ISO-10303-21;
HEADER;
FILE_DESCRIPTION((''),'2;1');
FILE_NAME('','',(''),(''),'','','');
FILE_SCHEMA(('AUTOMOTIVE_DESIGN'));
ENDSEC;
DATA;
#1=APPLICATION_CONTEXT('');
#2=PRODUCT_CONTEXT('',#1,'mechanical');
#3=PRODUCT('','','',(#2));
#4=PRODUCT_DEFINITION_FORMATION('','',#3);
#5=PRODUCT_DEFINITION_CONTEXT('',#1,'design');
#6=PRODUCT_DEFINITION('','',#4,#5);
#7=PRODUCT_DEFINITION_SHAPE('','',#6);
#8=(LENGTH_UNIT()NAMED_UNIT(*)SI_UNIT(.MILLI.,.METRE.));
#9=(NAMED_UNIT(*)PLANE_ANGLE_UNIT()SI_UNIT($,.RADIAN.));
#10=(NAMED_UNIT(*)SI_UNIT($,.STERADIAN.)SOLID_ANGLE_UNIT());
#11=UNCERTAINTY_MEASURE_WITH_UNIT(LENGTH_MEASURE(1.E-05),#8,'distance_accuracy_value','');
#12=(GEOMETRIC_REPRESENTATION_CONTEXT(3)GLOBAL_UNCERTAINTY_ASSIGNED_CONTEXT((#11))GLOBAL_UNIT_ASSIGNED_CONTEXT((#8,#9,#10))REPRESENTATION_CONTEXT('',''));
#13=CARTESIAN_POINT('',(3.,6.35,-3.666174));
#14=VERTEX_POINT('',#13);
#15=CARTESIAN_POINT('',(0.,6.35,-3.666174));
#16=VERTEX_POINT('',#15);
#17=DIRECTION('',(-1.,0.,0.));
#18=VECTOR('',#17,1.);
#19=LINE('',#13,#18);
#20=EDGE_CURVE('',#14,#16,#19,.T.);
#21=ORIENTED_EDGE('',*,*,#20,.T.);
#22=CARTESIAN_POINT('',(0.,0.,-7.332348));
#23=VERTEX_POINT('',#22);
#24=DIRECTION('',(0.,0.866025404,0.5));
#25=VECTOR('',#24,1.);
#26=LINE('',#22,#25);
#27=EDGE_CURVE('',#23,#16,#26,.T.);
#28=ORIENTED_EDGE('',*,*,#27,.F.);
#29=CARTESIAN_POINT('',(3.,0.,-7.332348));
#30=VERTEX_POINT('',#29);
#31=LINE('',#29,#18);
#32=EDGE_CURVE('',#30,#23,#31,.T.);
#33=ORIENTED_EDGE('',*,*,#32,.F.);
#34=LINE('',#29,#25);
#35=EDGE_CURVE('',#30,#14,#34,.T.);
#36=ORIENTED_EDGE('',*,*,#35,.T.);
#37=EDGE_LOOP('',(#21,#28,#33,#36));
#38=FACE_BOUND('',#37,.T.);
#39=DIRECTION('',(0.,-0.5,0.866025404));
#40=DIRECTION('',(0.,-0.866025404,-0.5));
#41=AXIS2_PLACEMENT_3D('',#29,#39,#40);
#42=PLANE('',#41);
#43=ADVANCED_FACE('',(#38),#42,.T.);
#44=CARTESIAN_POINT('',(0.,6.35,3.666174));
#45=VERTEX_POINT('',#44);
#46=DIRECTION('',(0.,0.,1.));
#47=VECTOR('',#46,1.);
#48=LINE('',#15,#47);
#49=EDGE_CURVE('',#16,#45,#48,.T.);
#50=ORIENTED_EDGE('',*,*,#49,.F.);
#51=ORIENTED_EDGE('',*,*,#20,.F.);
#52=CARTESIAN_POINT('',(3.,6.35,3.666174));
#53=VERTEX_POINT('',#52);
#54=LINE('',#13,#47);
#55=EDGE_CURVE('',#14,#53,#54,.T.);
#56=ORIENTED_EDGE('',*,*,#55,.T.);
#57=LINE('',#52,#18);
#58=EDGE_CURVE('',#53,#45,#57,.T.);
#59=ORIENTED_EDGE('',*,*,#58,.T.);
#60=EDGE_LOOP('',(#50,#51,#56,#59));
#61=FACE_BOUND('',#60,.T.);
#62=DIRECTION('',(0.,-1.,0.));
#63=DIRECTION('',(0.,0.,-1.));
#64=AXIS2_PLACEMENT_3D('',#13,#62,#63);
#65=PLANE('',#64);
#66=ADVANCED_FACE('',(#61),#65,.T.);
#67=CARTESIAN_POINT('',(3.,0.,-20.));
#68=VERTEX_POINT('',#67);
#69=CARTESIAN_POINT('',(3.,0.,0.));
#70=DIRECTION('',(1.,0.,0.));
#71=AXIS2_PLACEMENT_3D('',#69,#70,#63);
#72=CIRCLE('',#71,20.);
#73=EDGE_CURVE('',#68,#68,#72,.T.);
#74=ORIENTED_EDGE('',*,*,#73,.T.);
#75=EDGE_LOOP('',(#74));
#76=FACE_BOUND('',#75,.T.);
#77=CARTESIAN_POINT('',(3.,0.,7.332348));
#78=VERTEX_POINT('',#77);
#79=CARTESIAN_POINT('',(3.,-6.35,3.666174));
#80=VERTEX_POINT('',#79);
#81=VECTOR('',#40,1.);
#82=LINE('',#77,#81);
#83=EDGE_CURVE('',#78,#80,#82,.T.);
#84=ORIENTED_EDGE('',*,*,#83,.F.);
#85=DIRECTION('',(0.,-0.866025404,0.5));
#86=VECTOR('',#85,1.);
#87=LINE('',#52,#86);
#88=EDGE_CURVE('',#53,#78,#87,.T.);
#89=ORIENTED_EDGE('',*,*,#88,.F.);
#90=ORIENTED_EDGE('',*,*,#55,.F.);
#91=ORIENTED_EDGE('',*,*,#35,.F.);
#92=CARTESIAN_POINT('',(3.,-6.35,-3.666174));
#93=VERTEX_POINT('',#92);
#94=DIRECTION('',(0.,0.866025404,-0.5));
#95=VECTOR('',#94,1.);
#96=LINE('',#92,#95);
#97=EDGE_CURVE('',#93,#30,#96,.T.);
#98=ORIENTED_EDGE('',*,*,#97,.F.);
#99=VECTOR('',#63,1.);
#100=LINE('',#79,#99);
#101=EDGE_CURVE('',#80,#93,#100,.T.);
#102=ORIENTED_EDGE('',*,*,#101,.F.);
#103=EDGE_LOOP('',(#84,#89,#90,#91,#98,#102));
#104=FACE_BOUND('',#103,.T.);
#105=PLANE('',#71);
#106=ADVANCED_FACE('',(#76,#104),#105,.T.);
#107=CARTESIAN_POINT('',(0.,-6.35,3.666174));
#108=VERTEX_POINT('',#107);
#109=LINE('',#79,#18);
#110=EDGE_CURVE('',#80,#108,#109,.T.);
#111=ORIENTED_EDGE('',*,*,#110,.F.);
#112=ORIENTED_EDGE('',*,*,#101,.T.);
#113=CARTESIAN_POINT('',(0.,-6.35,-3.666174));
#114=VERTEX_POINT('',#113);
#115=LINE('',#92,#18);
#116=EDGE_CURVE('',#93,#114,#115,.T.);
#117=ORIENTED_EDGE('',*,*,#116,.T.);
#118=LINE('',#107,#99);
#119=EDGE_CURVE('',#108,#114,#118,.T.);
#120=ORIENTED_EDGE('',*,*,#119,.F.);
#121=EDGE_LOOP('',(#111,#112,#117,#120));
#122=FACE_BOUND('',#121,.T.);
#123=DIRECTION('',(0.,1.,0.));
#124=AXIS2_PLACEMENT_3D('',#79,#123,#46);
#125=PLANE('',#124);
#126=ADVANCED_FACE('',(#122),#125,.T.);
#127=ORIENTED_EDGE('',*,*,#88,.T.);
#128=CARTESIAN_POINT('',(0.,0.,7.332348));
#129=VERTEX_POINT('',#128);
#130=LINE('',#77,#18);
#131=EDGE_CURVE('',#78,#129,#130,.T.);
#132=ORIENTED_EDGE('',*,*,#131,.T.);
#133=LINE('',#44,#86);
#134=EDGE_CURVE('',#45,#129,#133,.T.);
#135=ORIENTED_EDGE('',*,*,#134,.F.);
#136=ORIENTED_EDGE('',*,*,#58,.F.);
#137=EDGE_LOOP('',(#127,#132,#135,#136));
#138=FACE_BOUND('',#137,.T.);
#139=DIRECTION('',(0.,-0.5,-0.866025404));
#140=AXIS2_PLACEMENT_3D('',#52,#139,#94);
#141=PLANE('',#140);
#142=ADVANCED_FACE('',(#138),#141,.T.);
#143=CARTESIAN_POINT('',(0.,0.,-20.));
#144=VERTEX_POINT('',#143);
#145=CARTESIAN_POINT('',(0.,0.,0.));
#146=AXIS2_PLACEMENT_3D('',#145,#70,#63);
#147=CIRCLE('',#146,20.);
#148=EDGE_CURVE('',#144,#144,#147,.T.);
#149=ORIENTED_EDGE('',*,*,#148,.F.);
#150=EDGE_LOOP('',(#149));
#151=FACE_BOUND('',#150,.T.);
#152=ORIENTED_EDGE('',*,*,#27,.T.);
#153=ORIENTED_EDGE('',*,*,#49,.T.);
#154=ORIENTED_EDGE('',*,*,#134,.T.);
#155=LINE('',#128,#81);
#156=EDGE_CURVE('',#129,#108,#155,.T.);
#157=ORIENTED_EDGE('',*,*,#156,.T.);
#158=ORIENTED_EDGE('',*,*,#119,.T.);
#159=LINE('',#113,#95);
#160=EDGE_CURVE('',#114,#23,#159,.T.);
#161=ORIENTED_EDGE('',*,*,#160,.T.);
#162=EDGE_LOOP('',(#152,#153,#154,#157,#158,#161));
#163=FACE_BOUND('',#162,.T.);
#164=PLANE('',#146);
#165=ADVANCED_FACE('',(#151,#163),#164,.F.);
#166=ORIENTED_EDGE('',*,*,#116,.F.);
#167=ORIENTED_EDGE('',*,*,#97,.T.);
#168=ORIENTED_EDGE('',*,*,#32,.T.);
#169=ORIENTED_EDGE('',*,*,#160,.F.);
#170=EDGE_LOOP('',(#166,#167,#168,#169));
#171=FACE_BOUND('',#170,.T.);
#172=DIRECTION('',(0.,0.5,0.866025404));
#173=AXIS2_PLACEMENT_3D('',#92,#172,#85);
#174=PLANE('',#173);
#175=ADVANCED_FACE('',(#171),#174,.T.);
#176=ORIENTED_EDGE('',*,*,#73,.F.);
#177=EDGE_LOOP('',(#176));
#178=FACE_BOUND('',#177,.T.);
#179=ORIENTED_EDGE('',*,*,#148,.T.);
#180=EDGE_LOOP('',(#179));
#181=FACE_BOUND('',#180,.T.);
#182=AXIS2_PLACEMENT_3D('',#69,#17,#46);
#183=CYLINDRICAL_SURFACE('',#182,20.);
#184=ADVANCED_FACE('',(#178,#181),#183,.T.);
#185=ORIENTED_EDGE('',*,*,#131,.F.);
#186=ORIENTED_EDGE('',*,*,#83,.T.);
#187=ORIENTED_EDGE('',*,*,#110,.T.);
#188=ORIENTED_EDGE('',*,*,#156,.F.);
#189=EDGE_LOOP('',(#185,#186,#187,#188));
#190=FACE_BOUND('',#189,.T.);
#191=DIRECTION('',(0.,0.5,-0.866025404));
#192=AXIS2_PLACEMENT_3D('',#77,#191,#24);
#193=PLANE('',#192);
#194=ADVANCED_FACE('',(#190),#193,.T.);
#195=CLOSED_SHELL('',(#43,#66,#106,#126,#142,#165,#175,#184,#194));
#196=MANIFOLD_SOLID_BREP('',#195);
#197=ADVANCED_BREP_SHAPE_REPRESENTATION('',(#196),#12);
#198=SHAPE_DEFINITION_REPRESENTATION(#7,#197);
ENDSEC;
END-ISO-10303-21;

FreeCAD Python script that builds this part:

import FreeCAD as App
import Part
import Sketcher
Q = App.Units.Quantity

doc = App.newDocument("Part")
body = doc.addObject("PartDesign::Body", "Body")

# Sketch on YZ plane
sketch1 = body.newObject("Sketcher::SketchObject", "Sketch")
sketch1.AttachmentSupport = (doc.getObject("YZ_Plane"), [""])
sketch1.MapMode = "FlatFace"
sketch1.addGeometry([
    Part.Circle(App.Vector(0, 0, 0), App.Vector(0, 0, 1), 20),  # 0
    Part.LineSegment(App.Vector(6.35, -3.666174, 0), App.Vector(0, -7.332348, 0)),  # 1
    Part.LineSegment(App.Vector(0, -7.332348, 0), App.Vector(-6.35, -3.666174, 0)),  # 2
    Part.LineSegment(App.Vector(-6.35, -3.666174, 0), App.Vector(-6.35, 3.666174, 0)),  # 3
    Part.LineSegment(App.Vector(-6.35, 3.666174, 0), App.Vector(0, 7.332348, 0)),  # 4
    Part.LineSegment(App.Vector(0, 7.332348, 0), App.Vector(6.35, 3.666174, 0)),  # 5
    Part.LineSegment(App.Vector(6.35, 3.666174, 0), App.Vector(6.35, -3.666174, 0)),  # 6
], False)
sketch1.addConstraint([
    Sketcher.Constraint("Coincident", 1, 2, 2, 1),
    Sketcher.Constraint("Coincident", 2, 2, 3, 1),
    Sketcher.Constraint("Coincident", 3, 2, 4, 1),
    Sketcher.Constraint("Coincident", 4, 2, 5, 1),
    Sketcher.Constraint("Coincident", 5, 2, 6, 1),
    Sketcher.Constraint("Coincident", 6, 2, 1, 1),
    Sketcher.Constraint("Vertical", 3),
    Sketcher.Constraint("Vertical", 6),
    Sketcher.Constraint("Coincident", 0, 3, -1, 1),
    Sketcher.Constraint("Symmetric", 1, 2, 4, 2, -1, 1),
    Sketcher.Constraint("Symmetric", 2, 2, 5, 2, -1, 1),
    Sketcher.Constraint("PointOnObject", 1, 2, -2),
    Sketcher.Constraint("Parallel", 1, 4),
    Sketcher.Constraint("Horizontal", 3, 2, 5, 2),
    Sketcher.Constraint("Diameter", 0, Q("40 mm")),
    Sketcher.Constraint("Angle", 1, Q("-150 deg")),
    Sketcher.Constraint("DistanceX", 3, 2, 5, 2, Q("12.7 mm")),
    Sketcher.Constraint("DistanceY", 3, 1, 3, 2, Q("7.332348 mm")),
])
pad1 = body.newObject("PartDesign::Pad", "Pad")
pad1.Profile = sketch1
pad1.Length = 3

doc.recompute()
